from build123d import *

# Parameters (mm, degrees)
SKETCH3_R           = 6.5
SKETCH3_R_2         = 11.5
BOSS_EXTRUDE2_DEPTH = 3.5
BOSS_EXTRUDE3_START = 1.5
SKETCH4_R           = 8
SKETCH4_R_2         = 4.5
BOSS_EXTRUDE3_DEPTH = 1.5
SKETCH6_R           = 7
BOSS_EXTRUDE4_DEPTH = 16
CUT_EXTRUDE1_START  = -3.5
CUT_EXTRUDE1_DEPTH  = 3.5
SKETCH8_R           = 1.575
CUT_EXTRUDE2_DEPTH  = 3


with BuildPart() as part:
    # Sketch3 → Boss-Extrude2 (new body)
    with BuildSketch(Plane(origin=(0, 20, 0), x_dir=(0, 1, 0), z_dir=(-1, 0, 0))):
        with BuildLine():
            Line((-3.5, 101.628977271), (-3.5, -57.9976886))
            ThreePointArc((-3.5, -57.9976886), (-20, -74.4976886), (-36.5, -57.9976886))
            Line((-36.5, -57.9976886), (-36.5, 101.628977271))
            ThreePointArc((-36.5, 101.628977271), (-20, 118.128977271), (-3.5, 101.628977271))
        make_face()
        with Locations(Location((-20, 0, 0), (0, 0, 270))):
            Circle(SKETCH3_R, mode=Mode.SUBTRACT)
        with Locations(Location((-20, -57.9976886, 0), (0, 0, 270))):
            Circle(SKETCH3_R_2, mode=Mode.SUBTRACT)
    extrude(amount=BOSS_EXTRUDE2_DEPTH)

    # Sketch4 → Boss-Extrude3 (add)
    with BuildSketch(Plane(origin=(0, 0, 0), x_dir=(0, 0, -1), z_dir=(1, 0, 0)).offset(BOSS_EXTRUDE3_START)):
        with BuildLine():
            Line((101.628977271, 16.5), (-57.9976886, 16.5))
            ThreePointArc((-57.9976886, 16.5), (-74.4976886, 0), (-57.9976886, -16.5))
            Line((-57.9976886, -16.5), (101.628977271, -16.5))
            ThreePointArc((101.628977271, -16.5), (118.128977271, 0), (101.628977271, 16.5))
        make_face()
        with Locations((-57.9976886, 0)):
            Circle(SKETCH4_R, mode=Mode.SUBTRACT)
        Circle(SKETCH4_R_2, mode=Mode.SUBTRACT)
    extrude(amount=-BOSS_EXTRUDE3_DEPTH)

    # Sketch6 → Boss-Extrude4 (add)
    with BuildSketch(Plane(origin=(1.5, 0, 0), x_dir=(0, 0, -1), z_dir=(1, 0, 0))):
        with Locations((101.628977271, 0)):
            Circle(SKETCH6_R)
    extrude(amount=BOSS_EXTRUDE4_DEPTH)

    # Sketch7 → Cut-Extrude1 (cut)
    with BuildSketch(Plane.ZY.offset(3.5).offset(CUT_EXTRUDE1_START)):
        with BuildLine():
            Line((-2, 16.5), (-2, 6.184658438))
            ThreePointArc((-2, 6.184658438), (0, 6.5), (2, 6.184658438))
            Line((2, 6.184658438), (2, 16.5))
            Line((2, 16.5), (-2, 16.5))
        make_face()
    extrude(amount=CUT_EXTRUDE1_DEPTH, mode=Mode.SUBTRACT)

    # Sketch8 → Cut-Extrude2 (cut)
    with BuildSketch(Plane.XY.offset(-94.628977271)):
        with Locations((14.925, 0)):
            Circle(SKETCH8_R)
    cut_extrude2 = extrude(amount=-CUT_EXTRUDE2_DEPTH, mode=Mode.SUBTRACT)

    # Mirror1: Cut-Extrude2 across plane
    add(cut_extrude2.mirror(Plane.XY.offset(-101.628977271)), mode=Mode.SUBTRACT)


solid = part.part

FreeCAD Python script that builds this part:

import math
import FreeCAD as App
import Part
import Sketcher
from FreeCAD import Vector
Q = App.Units.Quantity

doc = App.newDocument("Part")
body = doc.addObject("PartDesign::Body", "Body")

# Sketch on YZ plane
sketch1 = body.newObject("Sketcher::SketchObject", "Sketch")
sketch1.AttachmentSupport = (doc.getObject("YZ_Plane"), [""])
sketch1.MapMode = "FlatFace"
sketch1.addGeometry(Part.LineSegment(Vector(16.5, 57.997689, 0), Vector(16.5, -101.628977, 0)), False)
sketch1.addGeometry(Part.ArcOfCircle(Part.Circle(Vector(0, -101.628977, 0), Vector(0, 0, 1), 16.5), math.radians(180), math.radians(360)), False)
sketch1.addGeometry(Part.LineSegment(Vector(-16.5, -101.628977, 0), Vector(-16.5, 57.997689, 0)), False)
sketch1.addGeometry(Part.ArcOfCircle(Part.Circle(Vector(0, 57.997689, 0), Vector(0, 0, 1), 16.5), math.radians(0), math.radians(180)), False)
sketch1.addGeometry(Part.Circle(Vector(0, 57.997689, 0), Vector(0, 0, 1), 11.5), False)
sketch1.addGeometry(Part.Circle(Vector(0, 0, 0), Vector(0, 0, 1), 6.5), False)
sketch1.addConstraint(Sketcher.Constraint("Tangent", 0, 2, 1, 2))
sketch1.addConstraint(Sketcher.Constraint("Tangent", 1, 1, 2, 1))
sketch1.addConstraint(Sketcher.Constraint("Tangent", 2, 2, 3, 2))
sketch1.addConstraint(Sketcher.Constraint("Tangent", 3, 1, 0, 1))
sketch1.addConstraint(Sketcher.Constraint("Vertical", 0))
sketch1.addConstraint(Sketcher.Constraint("Vertical", 2))
sketch1.addConstraint(Sketcher.Constraint("Coincident", 5, 3, -1, 1))
sketch1.addConstraint(Sketcher.Constraint("Coincident", 4, 3, 3, 3))
sketch1.addConstraint(Sketcher.Constraint("PointOnObject", 1, 3, -2))
sketch1.addConstraint(Sketcher.Constraint("Diameter", 4, Q("23 mm")))
sketch1.addConstraint(Sketcher.Constraint("Diameter", 5, Q("13 mm")))
sketch1.addConstraint(Sketcher.Constraint("Radius", 1, Q("16.5 mm")))
sketch1.addConstraint(Sketcher.Constraint("DistanceY", 0, 2, 0, 1, Q("159.626666 mm")))
sketch1.addConstraint(Sketcher.Constraint("DistanceY", -1, 1, 3, 3, Q("57.997689 mm")))
pad1 = body.newObject("PartDesign::Pad", "Pad")
pad1.Profile = sketch1
pad1.Length = 3.5
pad1.Reversed = True

# Sketch on YZ plane
sketch2 = body.newObject("Sketcher::SketchObject", "Sketch001")
sketch2.AttachmentSupport = (doc.getObject("YZ_Plane"), [""])
sketch2.MapMode = "FlatFace"
sketch2.AttachmentOffset = App.Placement(Vector(0, 0, 1.5), App.Rotation())
sketch2.addGeometry(Part.LineSegment(Vector(16.5, -101.628977, 0), Vector(16.5, 57.997689, 0)), False)
sketch2.addGeometry(Part.ArcOfCircle(Part.Circle(Vector(0, 57.997689, 0), Vector(0, 0, 1), 16.5), math.radians(0), math.radians(180)), False)
sketch2.addGeometry(Part.LineSegment(Vector(-16.5, 57.997689, 0), Vector(-16.5, -101.628977, 0)), False)
sketch2.addGeometry(Part.ArcOfCircle(Part.Circle(Vector(0, -101.628977, 0), Vector(0, 0, 1), 16.5), math.radians(180), math.radians(360)), False)
sketch2.addGeometry(Part.Circle(Vector(0, 57.997689, 0), Vector(0, 0, 1), 8), False)
sketch2.addGeometry(Part.Circle(Vector(0, 0, 0), Vector(0, 0, 1), 4.5), False)
sketch2.addConstraint(Sketcher.Constraint("Tangent", 0, 2, 1, 1))
sketch2.addConstraint(Sketcher.Constraint("Tangent", 1, 2, 2, 1))
sketch2.addConstraint(Sketcher.Constraint("Tangent", 2, 2, 3, 1))
sketch2.addConstraint(Sketcher.Constraint("Tangent", 3, 2, 0, 1))
sketch2.addConstraint(Sketcher.Constraint("Vertical", 0))
sketch2.addConstraint(Sketcher.Constraint("Vertical", 2))
sketch2.addConstraint(Sketcher.Constraint("Coincident", 5, 3, -1, 1))
sketch2.addConstraint(Sketcher.Constraint("Coincident", 4, 3, 1, 3))
sketch2.addConstraint(Sketcher.Constraint("PointOnObject", 1, 3, -2))
sketch2.addConstraint(Sketcher.Constraint("Diameter", 4, Q("16 mm")))
sketch2.addConstraint(Sketcher.Constraint("Diameter", 5, Q("9 mm")))
sketch2.addConstraint(Sketcher.Constraint("Radius", 1, Q("16.5 mm")))
sketch2.addConstraint(Sketcher.Constraint("DistanceY", 0, 1, 0, 2, Q("159.626666 mm")))
sketch2.addConstraint(Sketcher.Constraint("DistanceY", -1, 1, 1, 3, Q("57.997689 mm")))
pad2 = body.newObject("PartDesign::Pad", "Pad001")
pad2.Profile = sketch2
pad2.Length = 1.5
pad2.Reversed = True

# Sketch on YZ plane
sketch3 = body.newObject("Sketcher::SketchObject", "Sketch002")
sketch3.AttachmentSupport = (doc.getObject("YZ_Plane"), [""])
sketch3.MapMode = "FlatFace"
sketch3.AttachmentOffset = App.Placement(Vector(0, 0, 1.5), App.Rotation())
sketch3.addGeometry(Part.Circle(Vector(0, -101.628977, 0), Vector(0, 0, 1), 7), False)
sketch3.addConstraint(Sketcher.Constraint("PointOnObject", 0, 3, -2))
sketch3.addConstraint(Sketcher.Constraint("Diameter", 0, Q("14 mm")))
sketch3.addConstraint(Sketcher.Constraint("DistanceY", 0, 3, -1, 1, Q("101.628977 mm")))
pad3 = body.newObject("PartDesign::Pad", "Pad002")
pad3.Profile = sketch3
pad3.Length = 16

# Sketch on YZ plane
sketch4 = body.newObject("Sketcher::SketchObject", "Sketch003")
sketch4.AttachmentSupport = (doc.getObject("YZ_Plane"), [""])
sketch4.MapMode = "FlatFace"
sketch4.addGeometry(Part.LineSegment(Vector(16.5, -2, 0), Vector(6.184658, -2, 0)), False)
sketch4.addGeometry(Part.ArcOfCircle(Part.Circle(Vector(0, 0, 0), Vector(0, 0, 1), 6.5), math.radians(-17.920213), math.radians(17.920213)), False)
sketch4.addGeometry(Part.LineSegment(Vector(6.184658, 2, 0), Vector(16.5, 2, 0)), False)
sketch4.addGeometry(Part.LineSegment(Vector(16.5, 2, 0), Vector(16.5, -2, 0)), False)
sketch4.addConstraint(Sketcher.Constraint("Coincident", 0, 2, 1, 1))
sketch4.addConstraint(Sketcher.Constraint("Coincident", 1, 2, 2, 1))
sketch4.addConstraint(Sketcher.Constraint("Coincident", 2, 2, 3, 1))
sketch4.addConstraint(Sketcher.Constraint("Coincident", 3, 2, 0, 1))
sketch4.addConstraint(Sketcher.Constraint("Horizontal", 0))
sketch4.addConstraint(Sketcher.Constraint("Horizontal", 2))
sketch4.addConstraint(Sketcher.Constraint("Vertical", 3))
sketch4.addConstraint(Sketcher.Constraint("Coincident", 1, 3, -1, 1))
sketch4.addConstraint(Sketcher.Constraint("Vertical", 0, 2, 1, 2))
sketch4.addConstraint(Sketcher.Constraint("Radius", 1, Q("6.5 mm")))
sketch4.addConstraint(Sketcher.Constraint("DistanceY", 3, 2, 3, 1, Q("4 mm")))
sketch4.addConstraint(Sketcher.Constraint("DistanceX", -1, 1, 2, 2, Q("16.5 mm")))
pocket1 = body.newObject("PartDesign::Pocket", "Pocket")
pocket1.Profile = sketch4
pocket1.Length = 3.5

# Sketch on XY plane
sketch5 = body.newObject("Sketcher::SketchObject", "Sketch004")
sketch5.AttachmentSupport = (doc.getObject("XY_Plane"), [""])
sketch5.MapMode = "FlatFace"
sketch5.AttachmentOffset = App.Placement(Vector(0, 0, -94.628977), App.Rotation())
sketch5.addGeometry(Part.Circle(Vector(14.925, 0, 0), Vector(0, 0, 1), 1.575), False)
sketch5.addConstraint(Sketcher.Constraint("PointOnObject", 0, 3, -1))
sketch5.addConstraint(Sketcher.Constraint("Diameter", 0, Q("3.15 mm")))
sketch5.addConstraint(Sketcher.Constraint("DistanceX", -1, 1, 0, 3, Q("14.925 mm")))
pocket2 = body.newObject("PartDesign::Pocket", "Pocket001")
pocket2.Profile = sketch5
pocket2.Length = 3
doc.recompute()

datumplane = body.newObject("PartDesign::Plane", "DatumPlane")
datumplane.AttachmentSupport = (doc.getObject("XY_Plane"), [""])
datumplane.MapMode = "FlatFace"
datumplane.AttachmentOffset = App.Placement(Vector(0, 0, -101.628977), App.Rotation())
mirrored = body.newObject("PartDesign::Mirrored", "Mirrored")
mirrored.Originals = [pocket2]
mirrored.MirrorPlane = (datumplane, [""])
body.Tip = mirrored

doc.recompute()
